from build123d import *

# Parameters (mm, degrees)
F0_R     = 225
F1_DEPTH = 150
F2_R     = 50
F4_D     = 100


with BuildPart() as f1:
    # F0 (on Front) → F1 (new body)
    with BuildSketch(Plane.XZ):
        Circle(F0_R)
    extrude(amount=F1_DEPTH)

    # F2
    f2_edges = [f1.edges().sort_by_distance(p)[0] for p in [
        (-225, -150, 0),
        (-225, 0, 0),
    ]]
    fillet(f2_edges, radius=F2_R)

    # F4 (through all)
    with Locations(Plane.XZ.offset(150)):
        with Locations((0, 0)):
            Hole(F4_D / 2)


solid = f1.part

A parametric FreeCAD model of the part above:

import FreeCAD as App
import Part
import Sketcher


def edges_at(feature, points):
    """Names of the edges that pass closest to the given points."""
    edges = feature.Shape.Edges
    near = lambda p: min(range(len(edges)), key=lambda i: edges[i].distToShape(Part.Vertex(*p))[0])
    return sorted({f"Edge{near(p) + 1}" for p in points})

doc = App.newDocument("Part")
params = doc.addObject("Spreadsheet::Sheet", "Params")
for row, (alias, value) in enumerate([
    ("sketch1_diameter", "450 mm"),
    ("pad1_length", "150 mm"),
    ("fillet_radius", "50 mm"),
    ("sketch2_diameter", "100 mm"),
    ("hole_diameter", "100 mm"),
], start=1):
    params.set(f"A{row}", alias)
    params.set(f"B{row}", "=" + value)
    params.setAlias(f"B{row}", alias)

body = doc.addObject("PartDesign::Body", "Body")

# Sketch on XZ plane
sketch1 = body.newObject("Sketcher::SketchObject", "Sketch")
sketch1.AttachmentSupport = (doc.getObject("XZ_Plane"), [""])
sketch1.MapMode = "FlatFace"
sketch1.addGeometry(Part.Circle(App.Vector(0, 0, 0), App.Vector(0, 0, 1), 225), False)
sketch1.addConstraint([
    Sketcher.Constraint("Coincident", 0, 3, -1, 1),
    Sketcher.Constraint("Diameter", 0, 450.0),
])
sketch1.setExpression("Constraints[1]", "Params.sketch1_diameter")
pad1 = body.newObject("PartDesign::Pad", "Pad")
pad1.Profile = sketch1
pad1.setExpression("Length", "Params.pad1_length")
doc.recompute()

fillet = body.newObject("PartDesign::Fillet", "Fillet")
fillet.Base = (pad1, edges_at(pad1, [(-225, -150, 0), (-225, 0, 0)]))
fillet.setExpression("Radius", "Params.fillet_radius")

# Sketch on XZ plane
sketch2 = body.newObject("Sketcher::SketchObject", "Sketch001")
sketch2.AttachmentSupport = (doc.getObject("XZ_Plane"), [""])
sketch2.MapMode = "FlatFace"
sketch2.AttachmentOffset = App.Placement(App.Vector(0, 0, 150), App.Rotation())
sketch2.addGeometry(Part.Circle(App.Vector(0, 0, 0), App.Vector(0, 0, 1), 50), False)
sketch2.addConstraint([
    Sketcher.Constraint("Coincident", 0, 3, -1, 1),
    Sketcher.Constraint("Diameter", 0, 100.0),
])
sketch2.setExpression("Constraints[1]", "Params.sketch2_diameter")
doc.recompute()
hole = body.newObject("PartDesign::Hole", "Hole")
hole.Profile = sketch2
hole.ThreadType = "None"
hole.setExpression("Diameter", "Params.hole_diameter")
hole.DepthType = "ThroughAll"

doc.recompute()
